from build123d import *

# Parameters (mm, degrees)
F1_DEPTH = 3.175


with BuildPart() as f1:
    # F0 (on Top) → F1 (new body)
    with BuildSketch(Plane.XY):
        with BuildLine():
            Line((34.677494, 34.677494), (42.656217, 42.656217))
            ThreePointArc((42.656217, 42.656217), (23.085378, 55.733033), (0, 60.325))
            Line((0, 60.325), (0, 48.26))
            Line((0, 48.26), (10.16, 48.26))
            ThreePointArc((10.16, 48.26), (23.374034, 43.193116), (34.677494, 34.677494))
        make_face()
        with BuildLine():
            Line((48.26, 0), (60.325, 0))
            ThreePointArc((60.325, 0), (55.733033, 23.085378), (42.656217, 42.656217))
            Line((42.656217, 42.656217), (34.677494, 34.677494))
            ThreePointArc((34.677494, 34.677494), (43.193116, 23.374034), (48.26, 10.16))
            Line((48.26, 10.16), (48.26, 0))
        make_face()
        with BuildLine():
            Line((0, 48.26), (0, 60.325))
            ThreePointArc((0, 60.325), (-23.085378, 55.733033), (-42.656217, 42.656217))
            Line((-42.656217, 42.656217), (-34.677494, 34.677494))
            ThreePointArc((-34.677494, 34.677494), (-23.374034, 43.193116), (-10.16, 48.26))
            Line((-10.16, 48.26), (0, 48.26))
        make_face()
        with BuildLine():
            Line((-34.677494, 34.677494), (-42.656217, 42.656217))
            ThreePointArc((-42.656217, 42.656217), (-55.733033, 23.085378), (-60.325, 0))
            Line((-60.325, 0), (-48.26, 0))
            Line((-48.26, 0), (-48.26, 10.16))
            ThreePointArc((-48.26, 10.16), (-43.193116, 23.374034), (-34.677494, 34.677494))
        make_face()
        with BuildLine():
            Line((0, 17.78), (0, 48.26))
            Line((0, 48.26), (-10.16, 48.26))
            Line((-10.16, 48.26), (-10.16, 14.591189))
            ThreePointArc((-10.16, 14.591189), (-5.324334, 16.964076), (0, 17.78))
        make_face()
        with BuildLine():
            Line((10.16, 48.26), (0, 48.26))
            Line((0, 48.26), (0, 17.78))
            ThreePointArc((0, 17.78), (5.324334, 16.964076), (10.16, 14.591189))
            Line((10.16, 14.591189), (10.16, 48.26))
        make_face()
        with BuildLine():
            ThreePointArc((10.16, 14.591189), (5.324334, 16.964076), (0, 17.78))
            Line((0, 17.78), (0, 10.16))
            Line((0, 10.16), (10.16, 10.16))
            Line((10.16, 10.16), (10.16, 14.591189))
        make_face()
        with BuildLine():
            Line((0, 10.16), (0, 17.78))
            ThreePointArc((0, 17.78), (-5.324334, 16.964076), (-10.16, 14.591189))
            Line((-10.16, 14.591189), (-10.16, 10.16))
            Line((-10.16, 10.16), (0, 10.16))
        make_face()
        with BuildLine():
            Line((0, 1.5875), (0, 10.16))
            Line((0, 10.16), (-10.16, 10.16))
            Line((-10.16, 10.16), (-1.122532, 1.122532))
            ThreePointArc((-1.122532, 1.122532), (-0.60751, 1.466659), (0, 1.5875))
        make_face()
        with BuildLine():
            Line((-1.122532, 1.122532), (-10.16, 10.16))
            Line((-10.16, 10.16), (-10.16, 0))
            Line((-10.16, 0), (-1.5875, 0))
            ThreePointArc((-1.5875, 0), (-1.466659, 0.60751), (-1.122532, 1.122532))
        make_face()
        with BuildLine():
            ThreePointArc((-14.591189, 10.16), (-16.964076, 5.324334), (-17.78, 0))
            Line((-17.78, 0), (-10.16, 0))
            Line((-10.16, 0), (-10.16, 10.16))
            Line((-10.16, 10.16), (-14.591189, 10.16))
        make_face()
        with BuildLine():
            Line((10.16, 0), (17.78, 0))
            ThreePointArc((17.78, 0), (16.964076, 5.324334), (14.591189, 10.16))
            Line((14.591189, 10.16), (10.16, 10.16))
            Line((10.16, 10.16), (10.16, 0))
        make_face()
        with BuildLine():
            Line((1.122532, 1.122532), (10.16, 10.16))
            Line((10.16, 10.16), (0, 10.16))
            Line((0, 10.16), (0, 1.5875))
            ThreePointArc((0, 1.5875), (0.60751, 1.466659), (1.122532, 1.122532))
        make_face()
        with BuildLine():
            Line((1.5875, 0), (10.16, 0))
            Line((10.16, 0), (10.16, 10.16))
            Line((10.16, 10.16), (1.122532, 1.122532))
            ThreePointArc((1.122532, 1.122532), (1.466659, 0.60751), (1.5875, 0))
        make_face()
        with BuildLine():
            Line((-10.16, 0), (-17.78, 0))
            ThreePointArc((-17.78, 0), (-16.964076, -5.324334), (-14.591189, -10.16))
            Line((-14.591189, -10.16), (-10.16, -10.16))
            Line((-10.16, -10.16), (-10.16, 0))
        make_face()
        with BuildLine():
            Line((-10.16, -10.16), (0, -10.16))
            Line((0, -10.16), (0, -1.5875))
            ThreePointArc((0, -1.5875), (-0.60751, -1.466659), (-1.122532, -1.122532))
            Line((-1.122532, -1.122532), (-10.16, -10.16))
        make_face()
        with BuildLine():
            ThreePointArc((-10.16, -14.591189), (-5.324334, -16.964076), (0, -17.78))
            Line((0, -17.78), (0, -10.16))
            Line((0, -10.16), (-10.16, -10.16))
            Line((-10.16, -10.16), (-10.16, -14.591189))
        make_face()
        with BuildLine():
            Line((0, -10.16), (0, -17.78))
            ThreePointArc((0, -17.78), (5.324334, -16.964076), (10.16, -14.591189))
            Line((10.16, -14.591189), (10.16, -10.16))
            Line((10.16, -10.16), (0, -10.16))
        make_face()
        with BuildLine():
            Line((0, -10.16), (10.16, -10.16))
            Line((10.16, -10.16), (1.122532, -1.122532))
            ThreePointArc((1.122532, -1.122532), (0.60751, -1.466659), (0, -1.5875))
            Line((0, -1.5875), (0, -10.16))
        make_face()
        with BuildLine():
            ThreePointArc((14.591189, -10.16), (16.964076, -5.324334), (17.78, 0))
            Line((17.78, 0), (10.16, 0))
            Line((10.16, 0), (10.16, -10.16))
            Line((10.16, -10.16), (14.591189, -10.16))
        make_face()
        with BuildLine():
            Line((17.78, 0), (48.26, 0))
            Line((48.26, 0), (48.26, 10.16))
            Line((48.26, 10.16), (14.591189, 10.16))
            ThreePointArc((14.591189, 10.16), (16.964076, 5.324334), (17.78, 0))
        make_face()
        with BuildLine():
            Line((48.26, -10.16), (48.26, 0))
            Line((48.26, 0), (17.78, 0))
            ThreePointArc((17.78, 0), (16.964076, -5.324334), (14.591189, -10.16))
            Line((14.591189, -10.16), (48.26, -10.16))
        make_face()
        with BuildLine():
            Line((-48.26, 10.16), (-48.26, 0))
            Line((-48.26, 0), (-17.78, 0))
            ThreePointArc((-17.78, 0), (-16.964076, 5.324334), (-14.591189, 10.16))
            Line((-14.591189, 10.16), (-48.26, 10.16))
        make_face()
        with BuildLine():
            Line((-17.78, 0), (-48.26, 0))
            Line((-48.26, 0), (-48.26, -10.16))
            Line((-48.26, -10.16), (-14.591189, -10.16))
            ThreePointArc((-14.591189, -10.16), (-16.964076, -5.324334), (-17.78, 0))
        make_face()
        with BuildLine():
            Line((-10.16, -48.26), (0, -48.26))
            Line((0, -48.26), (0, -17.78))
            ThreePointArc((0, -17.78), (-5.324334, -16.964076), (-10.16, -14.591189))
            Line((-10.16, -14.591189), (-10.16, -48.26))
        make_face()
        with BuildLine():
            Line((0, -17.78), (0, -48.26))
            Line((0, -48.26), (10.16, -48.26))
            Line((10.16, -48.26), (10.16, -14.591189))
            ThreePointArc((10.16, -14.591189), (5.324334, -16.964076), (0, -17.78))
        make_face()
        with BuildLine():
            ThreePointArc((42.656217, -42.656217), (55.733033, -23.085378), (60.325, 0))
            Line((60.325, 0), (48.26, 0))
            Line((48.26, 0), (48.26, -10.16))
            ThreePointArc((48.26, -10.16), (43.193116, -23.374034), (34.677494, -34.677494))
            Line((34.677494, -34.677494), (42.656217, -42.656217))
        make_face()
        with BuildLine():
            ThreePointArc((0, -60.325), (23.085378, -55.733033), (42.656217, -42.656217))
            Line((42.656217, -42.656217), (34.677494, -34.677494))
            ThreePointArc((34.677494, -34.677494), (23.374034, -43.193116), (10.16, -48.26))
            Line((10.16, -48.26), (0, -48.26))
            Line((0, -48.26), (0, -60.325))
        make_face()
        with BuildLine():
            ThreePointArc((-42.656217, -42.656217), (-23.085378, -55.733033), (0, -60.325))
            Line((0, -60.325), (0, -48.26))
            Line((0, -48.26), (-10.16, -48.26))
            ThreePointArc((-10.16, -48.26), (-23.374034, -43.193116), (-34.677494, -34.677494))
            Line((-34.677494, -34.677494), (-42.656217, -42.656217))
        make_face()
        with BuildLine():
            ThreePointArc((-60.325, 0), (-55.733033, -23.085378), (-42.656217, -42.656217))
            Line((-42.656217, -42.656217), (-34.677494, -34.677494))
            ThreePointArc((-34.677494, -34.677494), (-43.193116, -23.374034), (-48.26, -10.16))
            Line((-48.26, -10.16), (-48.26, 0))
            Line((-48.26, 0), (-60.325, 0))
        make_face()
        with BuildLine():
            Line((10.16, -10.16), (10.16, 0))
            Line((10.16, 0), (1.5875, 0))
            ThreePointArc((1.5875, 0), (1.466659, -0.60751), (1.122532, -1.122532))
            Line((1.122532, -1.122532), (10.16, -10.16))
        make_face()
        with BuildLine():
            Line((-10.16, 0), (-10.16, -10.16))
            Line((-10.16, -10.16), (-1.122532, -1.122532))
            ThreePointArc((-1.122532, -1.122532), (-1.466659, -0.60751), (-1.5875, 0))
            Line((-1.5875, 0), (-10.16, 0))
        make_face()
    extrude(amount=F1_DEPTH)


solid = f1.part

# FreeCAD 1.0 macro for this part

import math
import FreeCAD as App
import Part
import Sketcher
Q = App.Units.Quantity

doc = App.newDocument("Part")
params = doc.addObject("Spreadsheet::Sheet", "Params")
for row, (alias, value) in enumerate([
    ("sketch1_radius", "1.9999999 in"),
    ("sketch1_width", "1.5 in"),
    ("sketch1_radius2", "2.3750001 in"),
    ("sketch1_radius3", "0.0624999 in"),
    ("pad1_length", "0.125 in"),
], start=1):
    params.set(f"A{row}", alias)
    params.set(f"B{row}", "=" + value)
    params.setAlias(f"B{row}", alias)

body = doc.addObject("PartDesign::Body", "Body")

# Sketch on XY plane
sketch1 = body.newObject("Sketcher::SketchObject", "Sketch")
sketch1.AttachmentSupport = (doc.getObject("XY_Plane"), [""])
sketch1.MapMode = "FlatFace"
sketch1.addGeometry(Part.ArcOfCircle(Part.Circle(App.Vector(0, 0, 0), App.Vector(0, 0, 1), 60.3), math.radians(135), math.radians(180)), False)
sketch1.addGeometry(Part.ArcOfCircle(Part.Circle(App.Vector(0, 0, 0), App.Vector(0, 0, 1), 60.3), math.radians(180), math.radians(225)), False)
sketch1.addGeometry(Part.ArcOfCircle(Part.Circle(App.Vector(0, 0, 0), App.Vector(0, 0, 1), 60.3), math.radians(-135), math.radians(-90)), False)
sketch1.addGeometry(Part.ArcOfCircle(Part.Circle(App.Vector(0, 0, 0), App.Vector(0, 0, 1), 60.3), math.radians(-90), math.radians(-45)), False)
sketch1.addGeometry(Part.ArcOfCircle(Part.Circle(App.Vector(0, 0, 0), App.Vector(0, 0, 1), 60.3), math.radians(-45), math.radians(0)), False)
sketch1.addGeometry(Part.ArcOfCircle(Part.Circle(App.Vector(0, 0, 0), App.Vector(0, 0, 1), 60.3), math.radians(0), math.radians(45)), False)
sketch1.addGeometry(Part.ArcOfCircle(Part.Circle(App.Vector(0, 0, 0), App.Vector(0, 0, 1), 60.3), math.radians(45), math.radians(90)), False)
sketch1.addGeometry(Part.ArcOfCircle(Part.Circle(App.Vector(0, 0, 0), App.Vector(0, 0, 1), 60.3), math.radians(90), math.radians(135)), False)
sketch1.addGeometry(Part.LineSegment(App.Vector(-48.3, -10.2, 0), App.Vector(-10.2, -10.2, 0)), False)
sketch1.addGeometry(Part.LineSegment(App.Vector(-10.2, -10.2, 0), App.Vector(-10.2, -48.3, 0)), False)
sketch1.addGeometry(Part.ArcOfCircle(Part.Circle(App.Vector(1.2, 1.2, 0), App.Vector(0, 0, 1), 50.8), math.radians(-135), math.radians(-103)), False)
sketch1.addGeometry(Part.ArcOfCircle(Part.Circle(App.Vector(1.2, 1.2, 0), App.Vector(0, 0, 1), 50.8), math.radians(-167), math.radians(-135)), False)
sketch1.addGeometry(Part.ArcOfCircle(Part.Circle(App.Vector(0, 0, 0), App.Vector(0, 0, 1), 1.6), math.radians(-135), math.radians(-90)), False)
sketch1.addGeometry(Part.ArcOfCircle(Part.Circle(App.Vector(0, 0, 0), App.Vector(0, 0, 1), 1.6), math.radians(180), math.radians(225)), False)
sketch1.addGeometry(Part.ArcOfCircle(Part.Circle(App.Vector(0, 0, 0), App.Vector(0, 0, 1), 1.6), math.radians(135), math.radians(180)), False)
sketch1.addGeometry(Part.ArcOfCircle(Part.Circle(App.Vector(0, 0, 0), App.Vector(0, 0, 1), 1.6), math.radians(90), math.radians(135)), False)
sketch1.addGeometry(Part.ArcOfCircle(Part.Circle(App.Vector(0, 0, 0), App.Vector(0, 0, 1), 1.6), math.radians(45), math.radians(90)), False)
sketch1.addGeometry(Part.ArcOfCircle(Part.Circle(App.Vector(0, 0, 0), App.Vector(0, 0, 1), 1.6), math.radians(0), math.radians(45)), False)
sketch1.addGeometry(Part.ArcOfCircle(Part.Circle(App.Vector(0, 0, 0), App.Vector(0, 0, 1), 1.6), math.radians(-45), math.radians(0)), False)
sketch1.addGeometry(Part.ArcOfCircle(Part.Circle(App.Vector(0, 0, 0), App.Vector(0, 0, 1), 1.6), math.radians(-90), math.radians(-45)), False)
sketch1.addGeometry(Part.LineSegment(App.Vector(10.2, -48.3, 0), App.Vector(10.2, -10.2, 0)), False)
sketch1.addGeometry(Part.LineSegment(App.Vector(10.2, -10.2, 0), App.Vector(48.3, -10.2, 0)), False)
sketch1.addGeometry(Part.ArcOfCircle(Part.Circle(App.Vector(-1.2, 1.2, 0), App.Vector(0, 0, 1), 50.8), math.radians(-45), math.radians(-13)), False)
sketch1.addGeometry(Part.ArcOfCircle(Part.Circle(App.Vector(-1.2, 1.2, 0), App.Vector(0, 0, 1), 50.8), math.radians(-77), math.radians(-45)), False)
sketch1.addGeometry(Part.ArcOfCircle(Part.Circle(App.Vector(1.2, -1.2, 0), App.Vector(0, 0, 1), 50.8), math.radians(135), math.radians(167)), False)
sketch1.addGeometry(Part.ArcOfCircle(Part.Circle(App.Vector(1.2, -1.2, 0), App.Vector(0, 0, 1), 50.8), math.radians(103), math.radians(135)), False)
sketch1.addGeometry(Part.LineSegment(App.Vector(-10.2, 48.3, 0), App.Vector(-10.2, 10.2, 0)), False)
sketch1.addGeometry(Part.LineSegment(App.Vector(-10.2, 10.2, 0), App.Vector(-48.3, 10.2, 0)), False)
sketch1.addGeometry(Part.LineSegment(App.Vector(10.2, 10.2, 0), App.Vector(10.2, 48.3, 0)), False)
sketch1.addGeometry(Part.ArcOfCircle(Part.Circle(App.Vector(-1.2, -1.2, 0), App.Vector(0, 0, 1), 50.8), math.radians(45), math.radians(77)), False)
sketch1.addGeometry(Part.ArcOfCircle(Part.Circle(App.Vector(-1.2, -1.2, 0), App.Vector(0, 0, 1), 50.8), math.radians(13), math.radians(45)), False)
sketch1.addGeometry(Part.LineSegment(App.Vector(48.3, 10.2, 0), App.Vector(10.2, 10.2, 0)), False)
sketch1.addConstraint(Sketcher.Constraint("Tangent", 0, 2, 1, 1))
sketch1.addConstraint(Sketcher.Constraint("Tangent", 1, 2, 2, 1))
sketch1.addConstraint(Sketcher.Constraint("Tangent", 2, 2, 3, 1))
sketch1.addConstraint(Sketcher.Constraint("Tangent", 3, 2, 4, 1))
sketch1.addConstraint(Sketcher.Constraint("Tangent", 4, 2, 5, 1))
sketch1.addConstraint(Sketcher.Constraint("Tangent", 5, 2, 6, 1))
sketch1.addConstraint(Sketcher.Constraint("Tangent", 6, 2, 7, 1))
sketch1.addConstraint(Sketcher.Constraint("Tangent", 7, 2, 0, 1))
sketch1.addConstraint(Sketcher.Constraint("Coincident", 8, 2, 9, 1))
sketch1.addConstraint(Sketcher.Constraint("Coincident", 9, 2, 10, 2))
sketch1.addConstraint(Sketcher.Constraint("Tangent", 10, 1, 11, 2))
sketch1.addConstraint(Sketcher.Constraint("Coincident", 11, 1, 8, 1))
sketch1.addConstraint(Sketcher.Constraint("Tangent", 12, 1, 13, 2))
sketch1.addConstraint(Sketcher.Constraint("Tangent", 13, 1, 14, 2))
sketch1.addConstraint(Sketcher.Constraint("Tangent", 14, 1, 15, 2))
sketch1.addConstraint(Sketcher.Constraint("Tangent", 15, 1, 16, 2))
sketch1.addConstraint(Sketcher.Constraint("Tangent", 16, 1, 17, 2))
sketch1.addConstraint(Sketcher.Constraint("Tangent", 17, 1, 18, 2))
sketch1.addConstraint(Sketcher.Constraint("Tangent", 18, 1, 19, 2))
sketch1.addConstraint(Sketcher.Constraint("Tangent", 19, 1, 12, 2))
sketch1.addConstraint(Sketcher.Constraint("Coincident", 20, 2, 21, 1))
sketch1.addConstraint(Sketcher.Constraint("Coincident", 21, 2, 22, 2))
sketch1.addConstraint(Sketcher.Constraint("Tangent", 22, 1, 23, 2))
sketch1.addConstraint(Sketcher.Constraint("Coincident", 23, 1, 20, 1))
sketch1.addConstraint(Sketcher.Constraint("Tangent", 24, 1, 25, 2))
sketch1.addConstraint(Sketcher.Constraint("Coincident", 25, 1, 26, 1))
sketch1.addConstraint(Sketcher.Constraint("Coincident", 26, 2, 27, 1))
sketch1.addConstraint(Sketcher.Constraint("Coincident", 27, 2, 24, 2))
sketch1.addConstraint(Sketcher.Constraint("Coincident", 28, 2, 29, 2))
sketch1.addConstraint(Sketcher.Constraint("Tangent", 29, 1, 30, 2))
sketch1.addConstraint(Sketcher.Constraint("Coincident", 30, 1, 31, 1))
sketch1.addConstraint(Sketcher.Constraint("Coincident", 31, 2, 28, 1))
sketch1.addConstraint(Sketcher.Constraint("Horizontal", 8))
sketch1.addConstraint(Sketcher.Constraint("Vertical", 9))
sketch1.addConstraint(Sketcher.Constraint("Vertical", 20))
sketch1.addConstraint(Sketcher.Constraint("Horizontal", 21))
sketch1.addConstraint(Sketcher.Constraint("Vertical", 26))
sketch1.addConstraint(Sketcher.Constraint("Horizontal", 27))
sketch1.addConstraint(Sketcher.Constraint("Vertical", 28))
sketch1.addConstraint(Sketcher.Constraint("Horizontal", 31))
sketch1.addConstraint(Sketcher.Constraint("Coincident", 0, 3, -1, 1))
sketch1.addConstraint(Sketcher.Constraint("Coincident", 2, 3, -1, 1))
sketch1.addConstraint(Sketcher.Constraint("Coincident", 4, 3, -1, 1))
sketch1.addConstraint(Sketcher.Constraint("Coincident", 12, 3, -1, 1))
sketch1.addConstraint(Sketcher.Constraint("Coincident", 14, 3, -1, 1))
sketch1.addConstraint(Sketcher.Constraint("Coincident", 16, 3, -1, 1))
sketch1.addConstraint(Sketcher.Constraint("Equal", 4, 5))
sketch1.addConstraint(Sketcher.Constraint("Equal", 10, 11))
sketch1.addConstraint(Sketcher.Constraint("Equal", 16, 17))
sketch1.addConstraint(Sketcher.Constraint("Equal", 11, 22))
sketch1.addConstraint(Sketcher.Constraint("Equal", 22, 23))
sketch1.addConstraint(Sketcher.Constraint("Equal", 23, 24))
sketch1.addConstraint(Sketcher.Constraint("Equal", 24, 25))
sketch1.addConstraint(Sketcher.Constraint("Equal", 25, 29))
sketch1.addConstraint(Sketcher.Constraint("Equal", 29, 30))
sketch1.addConstraint(Sketcher.Constraint("Symmetric", 22, 3, 24, 3, -1, 1))
sketch1.addConstraint(Sketcher.Constraint("Symmetric", 10, 3, 29, 3, -1, 1))
sketch1.addConstraint(Sketcher.Constraint("Symmetric", 20, 2, 26, 2, -1, 1))
sketch1.addConstraint(Sketcher.Constraint("Symmetric", 8, 2, 31, 2, -1, 1))
sketch1.addConstraint(Sketcher.Constraint("Symmetric", 10, 3, 22, 3, -2))
sketch1.addConstraint(Sketcher.Constraint("Symmetric", 8, 2, 20, 2, -2))
sketch1.addConstraint(Sketcher.Constraint("PointOnObject", 0, 2, -1))
sketch1.addConstraint(Sketcher.Constraint("PointOnObject", 2, 2, -2))
sketch1.addConstraint(Sketcher.Constraint("PointOnObject", 4, 2, -1))
sketch1.addConstraint(Sketcher.Constraint("PointOnObject", 6, 2, -2))
sketch1.addConstraint(Sketcher.Constraint("PointOnObject", 13, 1, -1))
sketch1.addConstraint(Sketcher.Constraint("PointOnObject", 15, 1, -2))
sketch1.addConstraint(Sketcher.Constraint("PointOnObject", 17, 1, -1))
sketch1.addConstraint(Sketcher.Constraint("PointOnObject", 19, 1, -2))
sketch1.addConstraint(Sketcher.Constraint("Horizontal", 1, 2, 3, 2))
sketch1.addConstraint(Sketcher.Constraint("Horizontal", 5, 2, 7, 2))
sketch1.addConstraint(Sketcher.Constraint("Horizontal", 14, 1, 16, 1))
sketch1.addConstraint(Sketcher.Constraint("Horizontal", 12, 1, 18, 1))
sketch1.addConstraint(Sketcher.Constraint("Horizontal", 10, 1, 22, 1))
sketch1.addConstraint(Sketcher.Constraint("Horizontal", 24, 1, 29, 1))
sketch1.addConstraint(Sketcher.Constraint("Vertical", 3, 2, 5, 2))
sketch1.addConstraint(Sketcher.Constraint("Vertical", 12, 1, 14, 1))
sketch1.addConstraint(Sketcher.Constraint("Vertical", 10, 1, 24, 1))
sketch1.addConstraint(Sketcher.Constraint("Equal", 31, 9))
sketch1.addConstraint(Sketcher.Constraint("Radius", 10, Q("1.9999999 in")))
sketch1.addConstraint(Sketcher.Constraint("DistanceX", 8, 1, 8, 2, Q("1.5 in")))
sketch1.addConstraint(Sketcher.Constraint("Radius", 0, Q("2.3750001 in")))
sketch1.addConstraint(Sketcher.Constraint("Radius", 12, Q("0.0624999 in")))
sketch1.addConstraint(Sketcher.Constraint("DistanceX", 8, 2, -1, 1, Q("0.4 in")))
sketch1.addConstraint(Sketcher.Constraint("DistanceY", 8, 2, -1, 1, Q("0.4 in")))
sketch1.addConstraint(Sketcher.Constraint("DistanceY", 1, 2, 29, 3, 41.41269))
sketch1.addConstraint(Sketcher.Constraint("DistanceX", 12, 1, 12, 3, 1.122531))
sketch1.addConstraint(Sketcher.Constraint("DistanceX", 10, 1, -1, 1, 34.677494))
sketch1.setExpression("Constraints[79]", "Params.sketch1_radius")
sketch1.setExpression("Constraints[80]", "Params.sketch1_width")
sketch1.setExpression("Constraints[81]", "Params.sketch1_radius2")
sketch1.setExpression("Constraints[82]", "Params.sketch1_radius3")
pad1 = body.newObject("PartDesign::Pad", "Pad")
pad1.Profile = sketch1
pad1.setExpression("Length", "Params.pad1_length")

doc.recompute()
